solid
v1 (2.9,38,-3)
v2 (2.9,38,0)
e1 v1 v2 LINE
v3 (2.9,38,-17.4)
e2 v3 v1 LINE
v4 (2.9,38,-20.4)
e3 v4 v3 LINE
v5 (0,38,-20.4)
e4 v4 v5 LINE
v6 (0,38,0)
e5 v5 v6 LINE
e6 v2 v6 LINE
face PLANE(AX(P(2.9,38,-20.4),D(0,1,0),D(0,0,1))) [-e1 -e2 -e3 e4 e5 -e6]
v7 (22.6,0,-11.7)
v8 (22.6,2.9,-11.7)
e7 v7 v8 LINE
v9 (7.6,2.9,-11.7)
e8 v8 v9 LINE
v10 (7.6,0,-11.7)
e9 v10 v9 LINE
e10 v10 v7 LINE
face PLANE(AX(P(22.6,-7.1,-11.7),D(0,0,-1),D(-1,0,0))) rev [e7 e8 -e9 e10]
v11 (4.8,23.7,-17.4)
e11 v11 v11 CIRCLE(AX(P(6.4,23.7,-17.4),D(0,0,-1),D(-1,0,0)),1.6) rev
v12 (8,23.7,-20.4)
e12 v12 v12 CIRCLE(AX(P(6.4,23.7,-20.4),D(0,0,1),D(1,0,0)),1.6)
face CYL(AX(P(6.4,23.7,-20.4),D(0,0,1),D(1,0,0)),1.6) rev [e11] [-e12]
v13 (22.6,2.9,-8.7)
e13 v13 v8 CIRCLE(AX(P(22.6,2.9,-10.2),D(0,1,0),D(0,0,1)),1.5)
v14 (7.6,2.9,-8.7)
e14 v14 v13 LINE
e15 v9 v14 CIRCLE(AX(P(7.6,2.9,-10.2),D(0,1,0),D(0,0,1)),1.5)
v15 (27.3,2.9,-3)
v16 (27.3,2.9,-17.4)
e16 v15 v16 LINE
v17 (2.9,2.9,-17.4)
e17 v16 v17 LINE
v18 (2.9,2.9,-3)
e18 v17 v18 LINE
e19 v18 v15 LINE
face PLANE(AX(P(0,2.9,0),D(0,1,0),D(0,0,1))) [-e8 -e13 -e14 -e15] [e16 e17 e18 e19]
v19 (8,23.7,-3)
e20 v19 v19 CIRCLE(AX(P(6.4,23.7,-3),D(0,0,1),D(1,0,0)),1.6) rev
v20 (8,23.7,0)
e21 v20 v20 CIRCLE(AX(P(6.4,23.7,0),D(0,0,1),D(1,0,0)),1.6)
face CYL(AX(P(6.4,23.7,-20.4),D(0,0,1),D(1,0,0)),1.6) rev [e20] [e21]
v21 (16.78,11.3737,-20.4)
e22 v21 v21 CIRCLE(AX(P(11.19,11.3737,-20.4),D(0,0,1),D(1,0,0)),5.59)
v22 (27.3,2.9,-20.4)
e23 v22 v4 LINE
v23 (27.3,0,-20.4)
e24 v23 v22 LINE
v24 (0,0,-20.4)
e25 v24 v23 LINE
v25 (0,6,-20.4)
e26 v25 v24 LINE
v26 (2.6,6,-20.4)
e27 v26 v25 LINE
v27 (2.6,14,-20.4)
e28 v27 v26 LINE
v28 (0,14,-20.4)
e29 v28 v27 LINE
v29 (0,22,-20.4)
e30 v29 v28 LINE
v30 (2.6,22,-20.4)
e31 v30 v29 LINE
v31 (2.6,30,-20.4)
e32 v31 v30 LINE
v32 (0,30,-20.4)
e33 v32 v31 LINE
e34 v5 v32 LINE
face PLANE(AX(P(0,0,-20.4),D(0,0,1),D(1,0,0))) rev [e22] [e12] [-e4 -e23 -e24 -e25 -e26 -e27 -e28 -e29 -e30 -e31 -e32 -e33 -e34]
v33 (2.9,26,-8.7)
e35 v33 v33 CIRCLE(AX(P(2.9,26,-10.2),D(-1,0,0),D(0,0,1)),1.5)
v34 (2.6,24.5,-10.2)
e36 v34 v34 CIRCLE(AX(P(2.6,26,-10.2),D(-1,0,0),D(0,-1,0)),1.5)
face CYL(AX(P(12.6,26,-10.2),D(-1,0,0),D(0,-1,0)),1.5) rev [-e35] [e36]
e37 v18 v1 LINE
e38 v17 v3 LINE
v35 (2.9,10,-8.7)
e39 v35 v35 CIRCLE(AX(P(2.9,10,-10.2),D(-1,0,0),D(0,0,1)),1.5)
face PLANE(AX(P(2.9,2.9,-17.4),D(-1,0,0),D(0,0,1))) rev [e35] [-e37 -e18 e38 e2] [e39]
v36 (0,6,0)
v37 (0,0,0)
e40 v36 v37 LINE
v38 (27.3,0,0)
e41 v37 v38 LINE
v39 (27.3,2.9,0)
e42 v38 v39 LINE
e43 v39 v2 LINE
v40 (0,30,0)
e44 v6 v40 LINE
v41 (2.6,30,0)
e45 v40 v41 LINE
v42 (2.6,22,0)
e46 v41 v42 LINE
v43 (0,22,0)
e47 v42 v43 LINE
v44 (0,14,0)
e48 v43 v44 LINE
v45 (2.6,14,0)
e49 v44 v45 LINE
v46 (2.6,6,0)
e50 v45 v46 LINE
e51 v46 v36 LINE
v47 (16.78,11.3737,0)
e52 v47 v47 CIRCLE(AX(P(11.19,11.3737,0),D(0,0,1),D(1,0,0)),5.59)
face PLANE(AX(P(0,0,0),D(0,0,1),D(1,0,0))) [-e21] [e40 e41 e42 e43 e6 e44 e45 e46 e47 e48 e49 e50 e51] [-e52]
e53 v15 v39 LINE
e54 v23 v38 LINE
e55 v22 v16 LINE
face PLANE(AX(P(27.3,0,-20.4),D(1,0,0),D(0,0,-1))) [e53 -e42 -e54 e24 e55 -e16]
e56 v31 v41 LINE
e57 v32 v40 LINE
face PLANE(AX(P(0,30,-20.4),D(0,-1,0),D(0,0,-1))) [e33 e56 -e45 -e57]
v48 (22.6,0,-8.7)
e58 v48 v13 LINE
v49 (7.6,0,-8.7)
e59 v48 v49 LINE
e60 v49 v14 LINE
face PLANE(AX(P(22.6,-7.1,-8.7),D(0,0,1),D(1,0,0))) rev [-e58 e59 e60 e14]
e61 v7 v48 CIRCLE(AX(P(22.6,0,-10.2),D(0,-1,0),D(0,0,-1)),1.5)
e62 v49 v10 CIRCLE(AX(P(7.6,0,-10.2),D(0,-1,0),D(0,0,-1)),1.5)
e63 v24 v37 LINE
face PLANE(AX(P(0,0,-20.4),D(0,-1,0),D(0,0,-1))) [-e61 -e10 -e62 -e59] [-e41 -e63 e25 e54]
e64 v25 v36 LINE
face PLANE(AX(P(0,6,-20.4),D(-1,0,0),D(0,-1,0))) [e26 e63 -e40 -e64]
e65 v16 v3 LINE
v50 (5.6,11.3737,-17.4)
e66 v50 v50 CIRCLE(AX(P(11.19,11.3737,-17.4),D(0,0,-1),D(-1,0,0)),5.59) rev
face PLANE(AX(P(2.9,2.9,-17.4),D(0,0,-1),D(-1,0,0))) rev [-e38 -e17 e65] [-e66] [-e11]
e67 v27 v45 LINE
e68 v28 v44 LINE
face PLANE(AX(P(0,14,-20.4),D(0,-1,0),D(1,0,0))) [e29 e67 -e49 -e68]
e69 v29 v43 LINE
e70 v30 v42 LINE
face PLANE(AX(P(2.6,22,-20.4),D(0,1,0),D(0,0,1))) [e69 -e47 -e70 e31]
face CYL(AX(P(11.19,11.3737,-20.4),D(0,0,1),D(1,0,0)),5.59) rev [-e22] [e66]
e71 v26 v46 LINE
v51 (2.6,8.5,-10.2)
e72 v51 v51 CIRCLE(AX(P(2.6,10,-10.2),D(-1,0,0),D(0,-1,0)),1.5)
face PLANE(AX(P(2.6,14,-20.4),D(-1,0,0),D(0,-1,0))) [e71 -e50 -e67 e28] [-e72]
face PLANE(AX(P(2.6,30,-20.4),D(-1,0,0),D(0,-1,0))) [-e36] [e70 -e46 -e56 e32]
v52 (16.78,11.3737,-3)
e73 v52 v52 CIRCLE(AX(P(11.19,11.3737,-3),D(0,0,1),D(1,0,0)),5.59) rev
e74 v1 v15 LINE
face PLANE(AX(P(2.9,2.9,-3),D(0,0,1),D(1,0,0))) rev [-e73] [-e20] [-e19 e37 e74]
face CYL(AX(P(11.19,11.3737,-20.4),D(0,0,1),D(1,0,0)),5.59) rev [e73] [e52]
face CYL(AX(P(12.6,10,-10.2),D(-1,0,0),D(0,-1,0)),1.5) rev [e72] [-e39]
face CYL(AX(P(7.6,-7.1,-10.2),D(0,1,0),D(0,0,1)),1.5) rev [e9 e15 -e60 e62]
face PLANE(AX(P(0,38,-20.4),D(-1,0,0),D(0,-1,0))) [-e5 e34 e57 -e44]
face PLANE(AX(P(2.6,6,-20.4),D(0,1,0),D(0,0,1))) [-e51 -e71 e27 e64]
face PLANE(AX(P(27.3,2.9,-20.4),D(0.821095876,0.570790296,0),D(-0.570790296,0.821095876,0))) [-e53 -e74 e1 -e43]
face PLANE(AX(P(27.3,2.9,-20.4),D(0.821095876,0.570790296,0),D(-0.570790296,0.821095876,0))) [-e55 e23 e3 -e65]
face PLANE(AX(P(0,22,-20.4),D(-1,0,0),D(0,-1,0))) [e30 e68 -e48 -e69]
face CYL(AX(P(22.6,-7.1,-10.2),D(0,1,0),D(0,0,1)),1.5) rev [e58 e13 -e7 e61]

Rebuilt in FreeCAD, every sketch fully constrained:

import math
import FreeCAD as App
import Part
import Sketcher
from FreeCAD import Vector
Q = App.Units.Quantity

doc = App.newDocument("Part")
params = doc.addObject("Spreadsheet::Sheet", "Params")
for row, (alias, value) in enumerate([
    ("sketch1_diameter", "3.2 mm"),
    ("sketch1_diameter2", "11.18 mm"),
    ("sketch1_height", "8 mm"),
    ("sketch1_height2", "6 mm"),
    ("sketch1_width", "27.3 mm"),
    ("pad1_length", "20.4 mm"),
    ("sketch2_width", "24.4 mm"),
    ("sketch2_height", "14.4 mm"),
    ("pocket1_length", "35.1 mm"),
    ("sketch3_diameter", "3 mm"),
    ("pocket2_length", "10 mm"),
    ("sketch4_radius", "1.5 mm"),
    ("sketch4_width", "15 mm"),
    ("pocket3_length", "10 mm"),
], start=1):
    params.set(f"A{row}", alias)
    params.set(f"B{row}", "=" + value)
    params.setAlias(f"B{row}", alias)

body = doc.addObject("PartDesign::Body", "Body")

# Sketch on XY plane
sketch1 = body.newObject("Sketcher::SketchObject", "Sketch")
sketch1.AttachmentSupport = (doc.getObject("XY_Plane"), [""])
sketch1.MapMode = "FlatFace"
sketch1.addGeometry([
    Part.LineSegment(Vector(0, 0, 0), Vector(27.3, 0, 0)),  # 0
    Part.LineSegment(Vector(27.3, 0, 0), Vector(27.3, 2.9, 0)),  # 1
    Part.LineSegment(Vector(27.3, 2.9, 0), Vector(2.9, 38, 0)),  # 2
    Part.LineSegment(Vector(2.9, 38, 0), Vector(0, 38, 0)),  # 3
    Part.LineSegment(Vector(0, 38, 0), Vector(0, 30, 0)),  # 4
    Part.LineSegment(Vector(0, 30, 0), Vector(2.6, 30, 0)),  # 5
    Part.LineSegment(Vector(2.6, 30, 0), Vector(2.6, 22, 0)),  # 6
    Part.LineSegment(Vector(2.6, 22, 0), Vector(0, 22, 0)),  # 7
    Part.LineSegment(Vector(0, 22, 0), Vector(0, 14, 0)),  # 8
    Part.LineSegment(Vector(0, 14, 0), Vector(2.6, 14, 0)),  # 9
    Part.LineSegment(Vector(2.6, 14, 0), Vector(2.6, 6, 0)),  # 10
    Part.LineSegment(Vector(2.6, 6, 0), Vector(0, 6, 0)),  # 11
    Part.LineSegment(Vector(0, 6, 0), Vector(0, 0, 0)),  # 12
    Part.Circle(Vector(11.2, 11.4, 0), Vector(0, 0, 1), 5.6),  # 13
    Part.Circle(Vector(6.4, 23.7, 0), Vector(0, 0, 1), 1.6),  # 14
], False)
sketch1.addConstraint([
    Sketcher.Constraint("Coincident", 0, 2, 1, 1),
    Sketcher.Constraint("Coincident", 1, 2, 2, 1),
    Sketcher.Constraint("Coincident", 2, 2, 3, 1),
    Sketcher.Constraint("Coincident", 3, 2, 4, 1),
    Sketcher.Constraint("Coincident", 4, 2, 5, 1),
    Sketcher.Constraint("Coincident", 5, 2, 6, 1),
    Sketcher.Constraint("Coincident", 6, 2, 7, 1),
    Sketcher.Constraint("Coincident", 7, 2, 8, 1),
    Sketcher.Constraint("Coincident", 8, 2, 9, 1),
    Sketcher.Constraint("Coincident", 9, 2, 10, 1),
    Sketcher.Constraint("Coincident", 10, 2, 11, 1),
    Sketcher.Constraint("Coincident", 11, 2, 12, 1),
    Sketcher.Constraint("Coincident", 12, 2, 0, 1),
    Sketcher.Constraint("Horizontal", 0),
    Sketcher.Constraint("Vertical", 1),
    Sketcher.Constraint("Horizontal", 3),
    Sketcher.Constraint("Vertical", 4),
    Sketcher.Constraint("Horizontal", 5),
    Sketcher.Constraint("Vertical", 6),
    Sketcher.Constraint("Horizontal", 7),
    Sketcher.Constraint("Vertical", 8),
    Sketcher.Constraint("Horizontal", 9),
    Sketcher.Constraint("Vertical", 10),
    Sketcher.Constraint("Horizontal", 11),
    Sketcher.Constraint("Vertical", 12),
    Sketcher.Constraint("Coincident", 12, 2, -1, 1),
    Sketcher.Constraint("PointOnObject", 3, 2, -2),
    Sketcher.Constraint("PointOnObject", 7, 2, -2),
    Sketcher.Constraint("Vertical", 6, 2, 9, 2),
    Sketcher.Constraint("Equal", 3, 1),
    Sketcher.Constraint("Equal", 4, 6),
    Sketcher.Constraint("Equal", 6, 8),
    Sketcher.Constraint("Equal", 8, 10),
    Sketcher.Constraint("Diameter", 14, Q("3.2 mm")),
    Sketcher.Constraint("Diameter", 13, Q("11.18 mm")),
    Sketcher.Constraint("DistanceY", 4, 2, 4, 1, Q("8 mm")),
    Sketcher.Constraint("DistanceY", 12, 2, 12, 1, Q("6 mm")),
    Sketcher.Constraint("DistanceX", 0, 1, 0, 2, Q("27.3 mm")),
    Sketcher.Constraint("DistanceX", 3, 2, 3, 1, Q("2.9 mm")),
    Sketcher.Constraint("DistanceX", 5, 1, 5, 2, Q("2.6 mm")),
    Sketcher.Constraint("DistanceX", -1, 1, 14, 3, Q("6.4 mm")),
    Sketcher.Constraint("DistanceY", -1, 1, 14, 3, Q("23.7 mm")),
    Sketcher.Constraint("DistanceX", -1, 1, 13, 3, Q("11.19 mm")),
    Sketcher.Constraint("DistanceY", -1, 1, 13, 3, Q("11.3737 mm")),
])
sketch1.setExpression("Constraints[33]", "Params.sketch1_diameter")
sketch1.setExpression("Constraints[34]", "Params.sketch1_diameter2")
sketch1.setExpression("Constraints[35]", "Params.sketch1_height")
sketch1.setExpression("Constraints[36]", "Params.sketch1_height2")
sketch1.setExpression("Constraints[37]", "Params.sketch1_width")
pad1 = body.newObject("PartDesign::Pad", "Pad")
pad1.Profile = sketch1
pad1.setExpression("Length", "Params.pad1_length")
pad1.Reversed = True

# Sketch on XZ plane
sketch2 = body.newObject("Sketcher::SketchObject", "Sketch001")
sketch2.AttachmentSupport = (doc.getObject("XZ_Plane"), [""])
sketch2.MapMode = "FlatFace"
sketch2.AttachmentOffset = App.Placement(Vector(0, 0, -38), App.Rotation())
sketch2.addGeometry([
    Part.LineSegment(Vector(3, -17, 0), Vector(3, -3, 0)),
    Part.LineSegment(Vector(3, -3, 0), Vector(27, -3, 0)),
    Part.LineSegment(Vector(27, -3, 0), Vector(27, -17, 0)),
    Part.LineSegment(Vector(27, -17, 0), Vector(3, -17, 0)),
], False)
sketch2.addConstraint([
    Sketcher.Constraint("Coincident", 0, 2, 1, 1),
    Sketcher.Constraint("Coincident", 1, 2, 2, 1),
    Sketcher.Constraint("Coincident", 2, 2, 3, 1),
    Sketcher.Constraint("Coincident", 3, 2, 0, 1),
    Sketcher.Constraint("Vertical", 0),
    Sketcher.Constraint("Horizontal", 1),
    Sketcher.Constraint("Vertical", 2),
    Sketcher.Constraint("Horizontal", 3),
    Sketcher.Constraint("DistanceX", 1, 1, 1, 2, Q("24.4 mm")),
    Sketcher.Constraint("DistanceY", 0, 1, 0, 2, Q("14.4 mm")),
    Sketcher.Constraint("DistanceY", 0, 2, -1, 1, Q("3 mm")),
    Sketcher.Constraint("DistanceX", -1, 1, 0, 2, Q("2.9 mm")),
])
sketch2.setExpression("Constraints[8]", "Params.sketch2_width")
sketch2.setExpression("Constraints[9]", "Params.sketch2_height")
pocket1 = body.newObject("PartDesign::Pocket", "Pocket")
pocket1.Profile = sketch2
pocket1.setExpression("Length", "Params.pocket1_length")
pocket1.Reversed = True

# Sketch on YZ plane
sketch3 = body.newObject("Sketcher::SketchObject", "Sketch002")
sketch3.AttachmentSupport = (doc.getObject("YZ_Plane"), [""])
sketch3.MapMode = "FlatFace"
sketch3.AttachmentOffset = App.Placement(Vector(0, 0, 2.6), App.Rotation())
sketch3.addGeometry([
    Part.Circle(Vector(26, -10.2, 0), Vector(0, 0, 1), 1.5),
    Part.Circle(Vector(10, -10.2, 0), Vector(0, 0, 1), 1.5),
], False)
sketch3.addConstraint([
    Sketcher.Constraint("Equal", 0, 1),
    Sketcher.Constraint("Horizontal", 0, 3, 1, 3),
    Sketcher.Constraint("Diameter", 0, Q("3 mm")),
    Sketcher.Constraint("DistanceX", -1, 1, 0, 3, Q("26 mm")),
    Sketcher.Constraint("DistanceX", -1, 1, 1, 3, Q("10 mm")),
    Sketcher.Constraint("DistanceY", 0, 3, -1, 1, Q("10.2 mm")),
])
sketch3.setExpression("Constraints[2]", "Params.sketch3_diameter")
pocket2 = body.newObject("PartDesign::Pocket", "Pocket001")
pocket2.Profile = sketch3
pocket2.setExpression("Length", "Params.pocket2_length")
pocket2.Reversed = True

# Sketch on XZ plane
sketch4 = body.newObject("Sketcher::SketchObject", "Sketch003")
sketch4.AttachmentSupport = (doc.getObject("XZ_Plane"), [""])
sketch4.MapMode = "FlatFace"
sketch4.AttachmentOffset = App.Placement(Vector(0, 0, -2.9), App.Rotation())
sketch4.addGeometry([
    Part.LineSegment(Vector(7.6, -8.7, 0), Vector(22.6, -8.7, 0)),
    Part.ArcOfCircle(Part.Circle(Vector(22.6, -10.2, 0), Vector(0, 0, 1), 1.5), math.radians(-90), math.radians(90)),
    Part.LineSegment(Vector(22.6, -11.7, 0), Vector(7.6, -11.7, 0)),
    Part.ArcOfCircle(Part.Circle(Vector(7.6, -10.2, 0), Vector(0, 0, 1), 1.5), math.radians(90), math.radians(270)),
], False)
sketch4.addConstraint([
    Sketcher.Constraint("Tangent", 0, 2, 1, 2),
    Sketcher.Constraint("Tangent", 1, 1, 2, 1),
    Sketcher.Constraint("Tangent", 2, 2, 3, 2),
    Sketcher.Constraint("Tangent", 3, 1, 0, 1),
    Sketcher.Constraint("Horizontal", 0),
    Sketcher.Constraint("Horizontal", 2),
    Sketcher.Constraint("Radius", 1, Q("1.5 mm")),
    Sketcher.Constraint("DistanceX", 0, 1, 0, 2, Q("15 mm")),
    Sketcher.Constraint("DistanceX", -1, 1, 1, 3, Q("22.6 mm")),
    Sketcher.Constraint("DistanceY", 1, 3, -1, 1, Q("10.2 mm")),
])
sketch4.setExpression("Constraints[6]", "Params.sketch4_radius")
sketch4.setExpression("Constraints[7]", "Params.sketch4_width")
pocket3 = body.newObject("PartDesign::Pocket", "Pocket002")
pocket3.Profile = sketch4
pocket3.setExpression("Length", "Params.pocket3_length")
pocket3.Reversed = True

doc.recompute()
